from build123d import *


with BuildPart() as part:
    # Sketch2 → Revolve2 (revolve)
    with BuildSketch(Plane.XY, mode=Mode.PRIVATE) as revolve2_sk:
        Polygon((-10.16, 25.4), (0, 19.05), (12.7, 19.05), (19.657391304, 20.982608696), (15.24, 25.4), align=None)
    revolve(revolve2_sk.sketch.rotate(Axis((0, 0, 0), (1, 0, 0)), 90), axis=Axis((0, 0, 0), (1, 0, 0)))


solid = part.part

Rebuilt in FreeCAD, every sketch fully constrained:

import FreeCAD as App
import Part
import Sketcher

V = App.Vector
Q = App.Units.Quantity


def add_polygon(sketch, points):
    """Adds a closed chain of lines whose ends are joined by coincident constraints."""
    first, n = sketch.GeometryCount, len(points)
    for a, b in zip(points, points[1:] + points[:1]):
        sketch.addGeometry(Part.LineSegment(App.Vector(*a, 0), App.Vector(*b, 0)), False)
    for i in range(n):
        sketch.addConstraint(Sketcher.Constraint("Coincident", first + i, 2, first + (i + 1) % n, 1))

doc = App.newDocument("Part")
body = doc.addObject("PartDesign::Body", "Body")

# Sketch on XY plane
sketch1 = body.newObject("Sketcher::SketchObject", "Sketch")
sketch1.AttachmentSupport = (doc.getObject("XY_Plane"), [""])
sketch1.MapMode = "FlatFace"
add_polygon(sketch1, [(-10.16, 25.4), (0, 19.05), (12.7, 19.05), (19.657391, 20.982609), (15.24, 25.4)])  # lines 0-4
sketch1.addConstraint(Sketcher.Constraint("Horizontal", 1))
sketch1.addConstraint(Sketcher.Constraint("Horizontal", 4))
sketch1.addConstraint(Sketcher.Constraint("PointOnObject", 0, 2, -2))
sketch1.addConstraint(Sketcher.Constraint("DistanceX", 4, 2, 4, 1, Q("1 in")))
sketch1.addConstraint(Sketcher.Constraint("DistanceX", 1, 1, 1, 2, Q("0.5 in")))
sketch1.addConstraint(Sketcher.Constraint("DistanceY", -1, 1, 3, 2, Q("1 in")))
sketch1.addConstraint(Sketcher.Constraint("Angle", 3, Q("135 deg")))
sketch1.addConstraint(Sketcher.Constraint("DistanceX", -1, 1, 3, 2, Q("0.6 in")))
sketch1.addConstraint(Sketcher.Constraint("DistanceY", -1, 1, 0, 2, Q("0.75 in")))
sketch1.addConstraint(Sketcher.Constraint("Distance", 2, 7.220822))
revolution = body.newObject("PartDesign::Revolution", "Revolution")
revolution.Profile = sketch1
revolution.ReferenceAxis = (sketch1, ["H_Axis"])
revolution.Angle = 360

doc.recompute()
